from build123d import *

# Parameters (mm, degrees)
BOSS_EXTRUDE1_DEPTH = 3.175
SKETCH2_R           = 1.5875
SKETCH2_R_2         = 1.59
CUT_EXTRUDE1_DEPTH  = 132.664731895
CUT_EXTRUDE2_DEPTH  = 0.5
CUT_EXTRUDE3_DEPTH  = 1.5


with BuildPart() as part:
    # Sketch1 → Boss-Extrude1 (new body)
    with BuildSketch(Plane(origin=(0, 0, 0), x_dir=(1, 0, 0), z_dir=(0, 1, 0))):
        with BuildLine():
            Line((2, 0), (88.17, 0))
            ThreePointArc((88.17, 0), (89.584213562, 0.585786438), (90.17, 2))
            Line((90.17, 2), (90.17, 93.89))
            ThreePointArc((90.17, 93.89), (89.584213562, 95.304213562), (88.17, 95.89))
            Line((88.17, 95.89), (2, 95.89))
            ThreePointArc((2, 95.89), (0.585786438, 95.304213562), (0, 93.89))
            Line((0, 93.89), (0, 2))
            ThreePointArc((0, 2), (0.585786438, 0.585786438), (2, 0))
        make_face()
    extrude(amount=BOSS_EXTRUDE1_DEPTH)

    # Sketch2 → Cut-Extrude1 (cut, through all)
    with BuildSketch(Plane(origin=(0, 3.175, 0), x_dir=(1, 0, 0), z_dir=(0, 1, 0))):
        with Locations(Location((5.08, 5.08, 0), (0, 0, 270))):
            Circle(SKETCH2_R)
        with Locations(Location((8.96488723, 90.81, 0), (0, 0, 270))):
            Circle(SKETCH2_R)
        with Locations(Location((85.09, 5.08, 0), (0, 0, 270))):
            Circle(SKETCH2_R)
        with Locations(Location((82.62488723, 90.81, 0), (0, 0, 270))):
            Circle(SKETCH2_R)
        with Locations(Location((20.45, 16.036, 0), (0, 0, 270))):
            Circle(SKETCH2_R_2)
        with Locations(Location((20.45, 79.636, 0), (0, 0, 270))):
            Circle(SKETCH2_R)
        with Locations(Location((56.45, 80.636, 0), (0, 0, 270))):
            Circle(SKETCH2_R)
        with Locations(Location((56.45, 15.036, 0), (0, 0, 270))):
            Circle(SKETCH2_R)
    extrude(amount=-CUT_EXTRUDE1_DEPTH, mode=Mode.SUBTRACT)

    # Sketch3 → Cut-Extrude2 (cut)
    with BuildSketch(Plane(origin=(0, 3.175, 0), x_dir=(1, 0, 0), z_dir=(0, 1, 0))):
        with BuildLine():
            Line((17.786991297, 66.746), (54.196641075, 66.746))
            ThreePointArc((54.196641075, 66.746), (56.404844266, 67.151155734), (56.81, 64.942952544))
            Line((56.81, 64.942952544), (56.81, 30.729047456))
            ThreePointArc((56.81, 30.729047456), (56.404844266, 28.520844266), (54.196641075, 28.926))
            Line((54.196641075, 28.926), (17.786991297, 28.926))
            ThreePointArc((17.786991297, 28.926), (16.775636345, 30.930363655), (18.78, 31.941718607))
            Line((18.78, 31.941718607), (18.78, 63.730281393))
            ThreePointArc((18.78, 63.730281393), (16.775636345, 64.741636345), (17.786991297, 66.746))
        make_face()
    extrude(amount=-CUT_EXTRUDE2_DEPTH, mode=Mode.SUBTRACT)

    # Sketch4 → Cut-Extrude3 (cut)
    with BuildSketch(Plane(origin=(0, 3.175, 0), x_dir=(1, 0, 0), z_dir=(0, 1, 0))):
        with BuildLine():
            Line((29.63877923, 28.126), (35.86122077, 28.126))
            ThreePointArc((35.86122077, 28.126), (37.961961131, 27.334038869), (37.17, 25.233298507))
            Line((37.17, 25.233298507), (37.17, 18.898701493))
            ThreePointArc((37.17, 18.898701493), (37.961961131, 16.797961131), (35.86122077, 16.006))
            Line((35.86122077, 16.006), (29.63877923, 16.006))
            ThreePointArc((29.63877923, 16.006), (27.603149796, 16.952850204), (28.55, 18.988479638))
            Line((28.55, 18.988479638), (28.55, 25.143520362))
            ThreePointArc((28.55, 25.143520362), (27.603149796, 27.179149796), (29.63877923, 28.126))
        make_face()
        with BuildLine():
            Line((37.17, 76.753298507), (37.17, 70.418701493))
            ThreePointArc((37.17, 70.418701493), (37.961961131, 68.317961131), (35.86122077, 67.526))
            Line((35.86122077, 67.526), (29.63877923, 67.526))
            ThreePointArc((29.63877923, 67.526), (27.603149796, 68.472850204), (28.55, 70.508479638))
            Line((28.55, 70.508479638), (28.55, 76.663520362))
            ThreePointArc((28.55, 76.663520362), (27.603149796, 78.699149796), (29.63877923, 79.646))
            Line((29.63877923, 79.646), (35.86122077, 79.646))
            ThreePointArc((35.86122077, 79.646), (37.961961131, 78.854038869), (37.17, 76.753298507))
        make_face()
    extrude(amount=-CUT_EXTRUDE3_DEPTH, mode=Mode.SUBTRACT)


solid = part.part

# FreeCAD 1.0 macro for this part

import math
import FreeCAD as App
import Part
import Sketcher

V = App.Vector

doc = App.newDocument("Part")
body = doc.addObject("PartDesign::Body", "Body")

# Sketch on XZ plane
sketch1 = doc.addObject("Sketcher::SketchObject", "Sketch")
body.addObject(sketch1)
sketch1.AttachmentSupport = (doc.XZ_Plane, [""])
sketch1.MapMode = "FlatFace"
sketch1.addGeometry([
    Part.LineSegment(V(2, 0, 0), V(88.2, 0, 0)),  # 0
    Part.ArcOfCircle(Part.Circle(V(88.2, -2, 0), V(0, 0, 1), 2), math.radians(0), math.radians(90)),  # 1
    Part.LineSegment(V(90.2, -2, 0), V(90.2, -93.9, 0)),  # 2
    Part.ArcOfCircle(Part.Circle(V(88.2, -93.9, 0), V(0, 0, 1), 2), math.radians(-90), math.radians(0)),  # 3
    Part.LineSegment(V(88.2, -95.9, 0), V(2, -95.9, 0)),  # 4
    Part.ArcOfCircle(Part.Circle(V(2, -93.9, 0), V(0, 0, 1), 2), math.radians(-180), math.radians(-90)),  # 5
    Part.LineSegment(V(0, -93.9, 0), V(0, -2, 0)),  # 6
    Part.ArcOfCircle(Part.Circle(V(2, -2, 0), V(0, 0, 1), 2), math.radians(90), math.radians(180)),  # 7
], False)
sketch1.addConstraint([
    Sketcher.Constraint("Tangent", 0, 2, 1, 2),
    Sketcher.Constraint("Tangent", 1, 1, 2, 1),
    Sketcher.Constraint("Tangent", 2, 2, 3, 2),
    Sketcher.Constraint("Tangent", 3, 1, 4, 1),
    Sketcher.Constraint("Tangent", 4, 2, 5, 2),
    Sketcher.Constraint("Tangent", 5, 1, 6, 1),
    Sketcher.Constraint("Tangent", 6, 2, 7, 2),
    Sketcher.Constraint("Tangent", 7, 1, 0, 1),
    Sketcher.Constraint("Horizontal", 0),
    Sketcher.Constraint("Vertical", 2),
    Sketcher.Constraint("Horizontal", 4),
    Sketcher.Constraint("Vertical", 6),
    Sketcher.Constraint("Equal", 1, 3),
    Sketcher.Constraint("Equal", 3, 5),
    Sketcher.Constraint("Equal", 5, 7),
    Sketcher.Constraint("PointOnObject", 0, 2, -1),
    Sketcher.Constraint("PointOnObject", 5, 1, -2),
    Sketcher.Constraint("Radius", 1, 2.0),
    Sketcher.Constraint("DistanceX", 0, 1, 0, 2, 86.17),
    Sketcher.Constraint("DistanceY", 2, 2, 2, 1, 91.89),
])
pad1 = doc.addObject("PartDesign::Pad", "Pad")
body.addObject(pad1)
pad1.Profile = sketch1
pad1.Length = 3.175
pad1.Reversed = True

# Sketch on XZ plane
sketch2 = doc.addObject("Sketcher::SketchObject", "Sketch001")
body.addObject(sketch2)
sketch2.AttachmentSupport = (doc.XZ_Plane, [""])
sketch2.MapMode = "FlatFace"
sketch2.AttachmentOffset = App.Placement(V(0, 0, -3.175), App.Rotation())
sketch2.addGeometry([
    Part.Circle(V(5.1, -5.1, 0), V(0, 0, 1), 1.6),  # 0
    Part.Circle(V(9, -90.8, 0), V(0, 0, 1), 1.6),  # 1
    Part.Circle(V(85.1, -5.1, 0), V(0, 0, 1), 1.6),  # 2
    Part.Circle(V(82.6, -90.8, 0), V(0, 0, 1), 1.6),  # 3
    Part.Circle(V(20.4, -16, 0), V(0, 0, 1), 1.6),  # 4
    Part.Circle(V(20.4, -79.6, 0), V(0, 0, 1), 1.6),  # 5
    Part.Circle(V(56.5, -80.6, 0), V(0, 0, 1), 1.6),  # 6
    Part.Circle(V(56.5, -15, 0), V(0, 0, 1), 1.6),  # 7
], False)
sketch2.addConstraint([
    Sketcher.Constraint("Equal", 0, 1),
    Sketcher.Constraint("Equal", 1, 2),
    Sketcher.Constraint("Equal", 2, 3),
    Sketcher.Constraint("Equal", 3, 5),
    Sketcher.Constraint("Equal", 5, 6),
    Sketcher.Constraint("Equal", 6, 7),
    Sketcher.Constraint("Horizontal", 0, 3, 2, 3),
    Sketcher.Constraint("Horizontal", 1, 3, 3, 3),
    Sketcher.Constraint("Vertical", 4, 3, 5, 3),
    Sketcher.Constraint("Vertical", 6, 3, 7, 3),
    Sketcher.Constraint("Diameter", 4, 3.18),
    Sketcher.Constraint("Diameter", 0, 3.175),
    Sketcher.Constraint("DistanceX", 5, 3, 6, 3, 36.0),
    Sketcher.Constraint("DistanceY", 6, 3, 5, 3, 1.0),
    Sketcher.Constraint("DistanceY", 4, 3, 7, 3, 1.0),
    Sketcher.Constraint("DistanceY", 5, 3, 4, 3, 63.6),
    Sketcher.Constraint("DistanceX", -1, 1, 0, 3, 5.08),
    Sketcher.Constraint("DistanceY", 0, 3, -1, 1, 5.08),
    Sketcher.Constraint("DistanceY", 1, 3, -1, 1, 90.81),
    Sketcher.Constraint("DistanceX", -1, 1, 2, 3, 85.09),
    Sketcher.Constraint("DistanceX", -1, 1, 4, 3, 20.45),
    Sketcher.Constraint("DistanceX", 1, 3, 3, 3, 73.66),
    Sketcher.Constraint("DistanceY", 4, 3, -1, 1, 16.036),
    Sketcher.Constraint("DistanceX", -1, 1, 1, 3, 8.964887),
])
pocket1 = doc.addObject("PartDesign::Pocket", "Pocket")
body.addObject(pocket1)
pocket1.Profile = sketch2
pocket1.Type = "ThroughAll"
pocket1.Reversed = True

# Sketch on XZ plane
sketch3 = doc.addObject("Sketcher::SketchObject", "Sketch002")
body.addObject(sketch3)
sketch3.AttachmentSupport = (doc.XZ_Plane, [""])
sketch3.MapMode = "FlatFace"
sketch3.AttachmentOffset = App.Placement(V(0, 0, -3.175), App.Rotation())
sketch3.addGeometry([
    Part.LineSegment(V(54.2, -66.7, 0), V(17.8, -66.7, 0)),  # 0
    Part.ArcOfCircle(Part.Circle(V(18.3, -65.2, 0), V(0, 0, 1), 1.6), math.radians(72), math.radians(252)),  # 1
    Part.LineSegment(V(18.8, -63.7, 0), V(18.8, -31.9, 0)),  # 2
    Part.ArcOfCircle(Part.Circle(V(18.3, -30.4, 0), V(0, 0, 1), 1.6), math.radians(108), math.radians(288)),  # 3
    Part.LineSegment(V(17.8, -28.9, 0), V(54.2, -28.9, 0)),  # 4
    Part.ArcOfCircle(Part.Circle(V(55.5, -29.8, 0), V(0, 0, 1), 1.6), math.radians(-35), math.radians(145)),  # 5
    Part.LineSegment(V(56.8, -30.7, 0), V(56.8, -64.9, 0)),  # 6
    Part.ArcOfCircle(Part.Circle(V(55.5, -65.8, 0), V(0, 0, 1), 1.6), math.radians(-145), math.radians(35)),  # 7
], False)
sketch3.addConstraint([
    Sketcher.Constraint("Coincident", 0, 2, 1, 2),
    Sketcher.Constraint("Coincident", 1, 1, 2, 1),
    Sketcher.Constraint("Coincident", 2, 2, 3, 2),
    Sketcher.Constraint("Coincident", 3, 1, 4, 1),
    Sketcher.Constraint("Coincident", 4, 2, 5, 2),
    Sketcher.Constraint("Coincident", 5, 1, 6, 1),
    Sketcher.Constraint("Coincident", 6, 2, 7, 2),
    Sketcher.Constraint("Coincident", 7, 1, 0, 1),
    Sketcher.Constraint("Horizontal", 0),
    Sketcher.Constraint("Vertical", 2),
    Sketcher.Constraint("Horizontal", 4),
    Sketcher.Constraint("Vertical", 6),
    Sketcher.Constraint("Equal", 1, 3),
    Sketcher.Constraint("Equal", 3, 5),
    Sketcher.Constraint("Equal", 5, 7),
    Sketcher.Constraint("Vertical", 1, 3, 3, 3),
    Sketcher.Constraint("Vertical", 5, 3, 7, 3),
    Sketcher.Constraint("Vertical", 0, 2, 3, 1),
    Sketcher.Constraint("Vertical", 4, 2, 7, 1),
    Sketcher.Constraint("Radius", 1, 1.5875),
    Sketcher.Constraint("DistanceX", -1, 1, 1, 1, 18.78),
    Sketcher.Constraint("DistanceX", -1, 1, 5, 1, 56.81),
    Sketcher.Constraint("DistanceY", 0, 2, -1, 1, 66.746),
    Sketcher.Constraint("DistanceY", 3, 1, -1, 1, 28.926),
    Sketcher.Constraint("DistanceX", 0, 2, 0, 1, 36.40965),
    Sketcher.Constraint("DistanceY", 2, 1, 2, 2, 31.788563),
    Sketcher.Constraint("DistanceY", 1, 3, -1, 1, 65.238141),
    Sketcher.Constraint("DistanceX", -1, 1, 5, 3, 55.503321),
])
pocket2 = doc.addObject("PartDesign::Pocket", "Pocket001")
body.addObject(pocket2)
pocket2.Profile = sketch3
pocket2.Length = 0.5
pocket2.Reversed = True

# Sketch on XZ plane
sketch4 = doc.addObject("Sketcher::SketchObject", "Sketch003")
body.addObject(sketch4)
sketch4.AttachmentSupport = (doc.XZ_Plane, [""])
sketch4.MapMode = "FlatFace"
sketch4.AttachmentOffset = App.Placement(V(0, 0, -3.175), App.Rotation())
sketch4.addGeometry([
    Part.LineSegment(V(35.9, -28.1, 0), V(29.6, -28.1, 0)),  # 0
    Part.ArcOfCircle(Part.Circle(V(29.1, -26.6, 0), V(0, 0, 1), 1.6), math.radians(110), math.radians(290)),  # 1
    Part.LineSegment(V(28.6, -25.1, 0), V(28.6, -19, 0)),  # 2
    Part.ArcOfCircle(Part.Circle(V(29.1, -17.5, 0), V(0, 0, 1), 1.6), math.radians(70), math.radians(250)),  # 3
    Part.LineSegment(V(29.6, -16, 0), V(35.9, -16, 0)),  # 4
    Part.ArcOfCircle(Part.Circle(V(36.5, -17.5, 0), V(0, 0, 1), 1.6), math.radians(-66), math.radians(114)),  # 5
    Part.LineSegment(V(37.2, -18.9, 0), V(37.2, -25.2, 0)),  # 6
    Part.ArcOfCircle(Part.Circle(V(36.5, -26.7, 0), V(0, 0, 1), 1.6), math.radians(-114), math.radians(66)),  # 7
    Part.LineSegment(V(37.2, -70.4, 0), V(37.2, -76.8, 0)),  # 8
    Part.ArcOfCircle(Part.Circle(V(36.5, -78.2, 0), V(0, 0, 1), 1.6), math.radians(-114), math.radians(66)),  # 9
    Part.LineSegment(V(35.9, -79.6, 0), V(29.6, -79.6, 0)),  # 10
    Part.ArcOfCircle(Part.Circle(V(29.1, -78.2, 0), V(0, 0, 1), 1.6), math.radians(110), math.radians(290)),  # 11
    Part.LineSegment(V(28.6, -76.7, 0), V(28.6, -70.5, 0)),  # 12
    Part.ArcOfCircle(Part.Circle(V(29.1, -69, 0), V(0, 0, 1), 1.6), math.radians(70), math.radians(250)),  # 13
    Part.LineSegment(V(29.6, -67.5, 0), V(35.9, -67.5, 0)),  # 14
    Part.ArcOfCircle(Part.Circle(V(36.5, -69, 0), V(0, 0, 1), 1.6), math.radians(-66), math.radians(114)),  # 15
], False)
sketch4.addConstraint([
    Sketcher.Constraint("Coincident", 0, 2, 1, 2),
    Sketcher.Constraint("Coincident", 1, 1, 2, 1),
    Sketcher.Constraint("Coincident", 2, 2, 3, 2),
    Sketcher.Constraint("Coincident", 3, 1, 4, 1),
    Sketcher.Constraint("Coincident", 4, 2, 5, 2),
    Sketcher.Constraint("Coincident", 5, 1, 6, 1),
    Sketcher.Constraint("Coincident", 6, 2, 7, 2),
    Sketcher.Constraint("Coincident", 7, 1, 0, 1),
    Sketcher.Constraint("Coincident", 8, 2, 9, 2),
    Sketcher.Constraint("Coincident", 9, 1, 10, 1),
    Sketcher.Constraint("Coincident", 10, 2, 11, 2),
    Sketcher.Constraint("Coincident", 11, 1, 12, 1),
    Sketcher.Constraint("Coincident", 12, 2, 13, 2),
    Sketcher.Constraint("Coincident", 13, 1, 14, 1),
    Sketcher.Constraint("Coincident", 14, 2, 15, 2),
    Sketcher.Constraint("Coincident", 15, 1, 8, 1),
    Sketcher.Constraint("Horizontal", 0),
    Sketcher.Constraint("Vertical", 2),
    Sketcher.Constraint("Horizontal", 4),
    Sketcher.Constraint("Vertical", 6),
    Sketcher.Constraint("Vertical", 8),
    Sketcher.Constraint("Horizontal", 10),
    Sketcher.Constraint("Vertical", 12),
    Sketcher.Constraint("Horizontal", 14),
    Sketcher.Constraint("Equal", 1, 3),
    Sketcher.Constraint("Equal", 3, 5),
    Sketcher.Constraint("Equal", 5, 7),
    Sketcher.Constraint("Equal", 7, 9),
    Sketcher.Constraint("Equal", 9, 11),
    Sketcher.Constraint("Equal", 11, 13),
    Sketcher.Constraint("Equal", 13, 15),
    Sketcher.Constraint("Vertical", 1, 3, 3, 3),
    Sketcher.Constraint("Vertical", 5, 3, 7, 3),
    Sketcher.Constraint("Vertical", 7, 3, 9, 3),
    Sketcher.Constraint("Vertical", 3, 3, 11, 3),
    Sketcher.Constraint("Vertical", 11, 3, 13, 3),
    Sketcher.Constraint("Vertical", 9, 3, 15, 3),
    Sketcher.Constraint("Vertical", 0, 2, 3, 1),
    Sketcher.Constraint("Vertical", 4, 2, 7, 1),
    Sketcher.Constraint("Vertical", 6, 2, 8, 2),
    Sketcher.Constraint("Vertical", 7, 1, 9, 1),
    Sketcher.Constraint("Vertical", 3, 1, 10, 2),
    Sketcher.Constraint("Vertical", 2, 2, 11, 1),
    Sketcher.Constraint("Vertical", 10, 2, 13, 1),
    Sketcher.Constraint("Vertical", 9, 1, 14, 2),
    Sketcher.Constraint("Equal", 6, 8),
    Sketcher.Constraint("Radius", 1, 1.5875),
    Sketcher.Constraint("DistanceX", -1, 1, 1, 1, 28.55),
    Sketcher.Constraint("DistanceX", -1, 1, 5, 1, 37.17),
    Sketcher.Constraint("DistanceY", 9, 3, 7, 3, 51.52),
    Sketcher.Constraint("DistanceY", 0, 2, -1, 1, 28.126),
    Sketcher.Constraint("DistanceY", 3, 1, -1, 1, 16.006),
    Sketcher.Constraint("DistanceX", 0, 2, 0, 1, 6.222442),
    Sketcher.Constraint("DistanceY", 2, 1, 2, 2, 6.155041),
    Sketcher.Constraint("DistanceY", 7, 3, 5, 3, 9.227299),
    Sketcher.Constraint("DistanceX", -1, 1, 1, 3, 29.09439),
])
pocket3 = doc.addObject("PartDesign::Pocket", "Pocket002")
body.addObject(pocket3)
pocket3.Profile = sketch4
pocket3.Length = 1.5
pocket3.Reversed = True

doc.recompute()
